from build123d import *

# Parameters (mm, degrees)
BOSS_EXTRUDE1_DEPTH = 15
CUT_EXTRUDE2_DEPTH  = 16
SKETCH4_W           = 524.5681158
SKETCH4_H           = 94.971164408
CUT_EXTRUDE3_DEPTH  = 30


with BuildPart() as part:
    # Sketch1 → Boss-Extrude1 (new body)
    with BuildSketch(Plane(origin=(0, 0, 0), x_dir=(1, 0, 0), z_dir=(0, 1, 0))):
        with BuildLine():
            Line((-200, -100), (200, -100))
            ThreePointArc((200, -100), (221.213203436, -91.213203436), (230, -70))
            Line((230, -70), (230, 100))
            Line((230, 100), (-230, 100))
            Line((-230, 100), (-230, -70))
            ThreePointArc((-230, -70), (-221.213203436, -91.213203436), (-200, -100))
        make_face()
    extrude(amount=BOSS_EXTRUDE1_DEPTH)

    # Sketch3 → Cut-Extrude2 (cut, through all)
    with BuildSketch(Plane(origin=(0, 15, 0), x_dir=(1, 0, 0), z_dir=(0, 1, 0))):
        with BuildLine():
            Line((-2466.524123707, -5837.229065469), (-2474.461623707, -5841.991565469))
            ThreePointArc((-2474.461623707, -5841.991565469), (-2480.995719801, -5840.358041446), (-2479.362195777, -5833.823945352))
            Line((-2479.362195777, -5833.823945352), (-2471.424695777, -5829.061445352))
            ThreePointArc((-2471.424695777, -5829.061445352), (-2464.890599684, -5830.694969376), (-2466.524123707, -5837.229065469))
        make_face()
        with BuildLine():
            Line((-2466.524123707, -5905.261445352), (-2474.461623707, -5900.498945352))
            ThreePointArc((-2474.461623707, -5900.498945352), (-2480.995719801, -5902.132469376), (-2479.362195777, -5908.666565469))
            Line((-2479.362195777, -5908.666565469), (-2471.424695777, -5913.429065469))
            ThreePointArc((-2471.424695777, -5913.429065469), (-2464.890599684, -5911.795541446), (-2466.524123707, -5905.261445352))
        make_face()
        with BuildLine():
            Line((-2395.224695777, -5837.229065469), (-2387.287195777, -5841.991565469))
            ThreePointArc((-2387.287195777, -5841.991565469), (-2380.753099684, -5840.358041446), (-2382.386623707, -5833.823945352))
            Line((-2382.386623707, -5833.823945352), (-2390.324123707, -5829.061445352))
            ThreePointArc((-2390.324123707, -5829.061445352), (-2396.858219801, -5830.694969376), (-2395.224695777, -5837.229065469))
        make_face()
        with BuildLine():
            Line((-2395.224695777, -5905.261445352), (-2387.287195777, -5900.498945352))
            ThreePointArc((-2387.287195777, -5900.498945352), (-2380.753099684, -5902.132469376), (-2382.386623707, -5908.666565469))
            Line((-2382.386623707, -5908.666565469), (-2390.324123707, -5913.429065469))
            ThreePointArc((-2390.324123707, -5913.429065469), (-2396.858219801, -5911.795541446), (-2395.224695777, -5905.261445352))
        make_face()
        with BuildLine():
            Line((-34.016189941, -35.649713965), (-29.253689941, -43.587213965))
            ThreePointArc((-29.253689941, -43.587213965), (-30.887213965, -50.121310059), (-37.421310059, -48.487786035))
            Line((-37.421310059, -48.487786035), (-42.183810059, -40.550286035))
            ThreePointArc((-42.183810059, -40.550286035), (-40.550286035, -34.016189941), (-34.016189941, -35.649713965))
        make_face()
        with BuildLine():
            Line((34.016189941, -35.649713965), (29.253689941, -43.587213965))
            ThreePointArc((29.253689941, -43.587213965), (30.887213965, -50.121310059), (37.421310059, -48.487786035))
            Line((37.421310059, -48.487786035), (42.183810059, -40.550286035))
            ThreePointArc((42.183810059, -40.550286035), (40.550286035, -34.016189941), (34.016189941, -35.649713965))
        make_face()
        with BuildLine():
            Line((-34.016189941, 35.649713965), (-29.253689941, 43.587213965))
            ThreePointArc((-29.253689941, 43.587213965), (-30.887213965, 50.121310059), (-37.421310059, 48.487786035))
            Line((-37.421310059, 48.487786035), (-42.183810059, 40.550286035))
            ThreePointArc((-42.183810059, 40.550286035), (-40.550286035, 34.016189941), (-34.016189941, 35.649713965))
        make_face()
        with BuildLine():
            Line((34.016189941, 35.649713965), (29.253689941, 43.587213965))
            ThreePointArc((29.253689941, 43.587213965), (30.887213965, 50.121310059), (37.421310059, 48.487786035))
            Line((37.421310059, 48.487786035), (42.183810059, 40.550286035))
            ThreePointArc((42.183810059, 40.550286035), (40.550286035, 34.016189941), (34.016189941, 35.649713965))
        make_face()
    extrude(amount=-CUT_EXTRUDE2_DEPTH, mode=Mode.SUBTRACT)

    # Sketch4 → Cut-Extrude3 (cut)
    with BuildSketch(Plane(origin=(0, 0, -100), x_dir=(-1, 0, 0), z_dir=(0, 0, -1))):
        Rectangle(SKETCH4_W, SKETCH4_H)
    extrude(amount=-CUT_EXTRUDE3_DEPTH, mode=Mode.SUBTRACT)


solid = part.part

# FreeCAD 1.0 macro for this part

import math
import FreeCAD as App
import Part
import Sketcher
from FreeCAD import Vector

doc = App.newDocument("Part")
body = doc.addObject("PartDesign::Body", "Body")

# Sketch on XZ plane
sketch1 = body.newObject("Sketcher::SketchObject", "Sketch")
sketch1.AttachmentSupport = (doc.getObject("XZ_Plane"), [""])
sketch1.MapMode = "FlatFace"
sketch1.addGeometry([
    Part.LineSegment(Vector(-200, 100, 0), Vector(200, 100, 0)),  # 0
    Part.ArcOfCircle(Part.Circle(Vector(200, 70, 0), Vector(0, 0, 1), 30), math.radians(0), math.radians(90)),  # 1
    Part.LineSegment(Vector(230, 70, 0), Vector(230, -100, 0)),  # 2
    Part.LineSegment(Vector(230, -100, 0), Vector(-230, -100, 0)),  # 3
    Part.LineSegment(Vector(-230, -100, 0), Vector(-230, 70, 0)),  # 4
    Part.ArcOfCircle(Part.Circle(Vector(-200, 70, 0), Vector(0, 0, 1), 30), math.radians(90), math.radians(180)),  # 5
], False)
sketch1.addConstraint([
    Sketcher.Constraint("Tangent", 0, 2, 1, 2),
    Sketcher.Constraint("Tangent", 1, 1, 2, 1),
    Sketcher.Constraint("Coincident", 2, 2, 3, 1),
    Sketcher.Constraint("Coincident", 3, 2, 4, 1),
    Sketcher.Constraint("Tangent", 4, 2, 5, 2),
    Sketcher.Constraint("Tangent", 5, 1, 0, 1),
    Sketcher.Constraint("Horizontal", 0),
    Sketcher.Constraint("Vertical", 2),
    Sketcher.Constraint("Horizontal", 3),
    Sketcher.Constraint("Vertical", 4),
    Sketcher.Constraint("Equal", 1, 5),
    Sketcher.Constraint("Radius", 1, 30.0),
    Sketcher.Constraint("DistanceX", 0, 1, 0, 2, 400.0),
    Sketcher.Constraint("DistanceY", 2, 2, 2, 1, 170.0),
    Sketcher.Constraint("DistanceX", -1, 1, 1, 3, 200.0),
    Sketcher.Constraint("DistanceY", -1, 1, 1, 3, 70.0),
])
pad1 = body.newObject("PartDesign::Pad", "Pad")
pad1.Profile = sketch1
pad1.Length = 15
pad1.Reversed = True

# Sketch on XZ plane
sketch2 = body.newObject("Sketcher::SketchObject", "Sketch001")
sketch2.AttachmentSupport = (doc.getObject("XZ_Plane"), [""])
sketch2.MapMode = "FlatFace"
sketch2.AttachmentOffset = App.Placement(Vector(0, 0, -15), App.Rotation())
sketch2.addGeometry([
    Part.LineSegment(Vector(-2474.5, 5842, 0), Vector(-2466.5, 5837.2, 0)),  # 0
    Part.ArcOfCircle(Part.Circle(Vector(-2469, 5833.1, 0), Vector(0, 0, 1), 4.8), math.radians(-121), math.radians(59)),  # 1
    Part.LineSegment(Vector(-2471.4, 5829.1, 0), Vector(-2479.4, 5833.8, 0)),  # 2
    Part.ArcOfCircle(Part.Circle(Vector(-2476.9, 5837.9, 0), Vector(0, 0, 1), 4.8), math.radians(59), math.radians(239)),  # 3
    Part.LineSegment(Vector(-2466.5, 5905.3, 0), Vector(-2474.5, 5900.5, 0)),  # 4
    Part.ArcOfCircle(Part.Circle(Vector(-2476.9, 5904.6, 0), Vector(0, 0, 1), 4.8), math.radians(121), math.radians(301)),  # 5
    Part.LineSegment(Vector(-2479.4, 5908.7, 0), Vector(-2471.4, 5913.4, 0)),  # 6
    Part.ArcOfCircle(Part.Circle(Vector(-2469, 5909.3, 0), Vector(0, 0, 1), 4.8), math.radians(-59), math.radians(121)),  # 7
    Part.LineSegment(Vector(-2395.2, 5837.2, 0), Vector(-2387.3, 5842, 0)),  # 8
    Part.ArcOfCircle(Part.Circle(Vector(-2384.8, 5837.9, 0), Vector(0, 0, 1), 4.8), math.radians(-59), math.radians(121)),  # 9
    Part.LineSegment(Vector(-2382.4, 5833.8, 0), Vector(-2390.3, 5829.1, 0)),  # 10
    Part.ArcOfCircle(Part.Circle(Vector(-2392.8, 5833.1, 0), Vector(0, 0, 1), 4.8), math.radians(121), math.radians(301)),  # 11
    Part.LineSegment(Vector(-2387.3, 5900.5, 0), Vector(-2395.2, 5905.3, 0)),  # 12
    Part.ArcOfCircle(Part.Circle(Vector(-2392.8, 5909.3, 0), Vector(0, 0, 1), 4.8), math.radians(59), math.radians(239)),  # 13
    Part.LineSegment(Vector(-2390.3, 5913.4, 0), Vector(-2382.4, 5908.7, 0)),  # 14
    Part.ArcOfCircle(Part.Circle(Vector(-2384.8, 5904.6, 0), Vector(0, 0, 1), 4.8), math.radians(-121), math.radians(59)),  # 15
    Part.LineSegment(Vector(-29.3, 43.6, 0), Vector(-34, 35.6, 0)),  # 16
    Part.ArcOfCircle(Part.Circle(Vector(-38.1, 38.1, 0), Vector(0, 0, 1), 4.8), math.radians(149), math.radians(329)),  # 17
    Part.LineSegment(Vector(-42.2, 40.6, 0), Vector(-37.4, 48.5, 0)),  # 18
    Part.ArcOfCircle(Part.Circle(Vector(-33.3, 46, 0), Vector(0, 0, 1), 4.8), math.radians(-31), math.radians(149)),  # 19
    Part.LineSegment(Vector(34, 35.6, 0), Vector(29.3, 43.6, 0)),  # 20
    Part.ArcOfCircle(Part.Circle(Vector(33.3, 46, 0), Vector(0, 0, 1), 4.8), math.radians(31), math.radians(211)),  # 21
    Part.LineSegment(Vector(37.4, 48.5, 0), Vector(42.2, 40.6, 0)),  # 22
    Part.ArcOfCircle(Part.Circle(Vector(38.1, 38.1, 0), Vector(0, 0, 1), 4.8), math.radians(-149), math.radians(31)),  # 23
    Part.LineSegment(Vector(-34, -35.6, 0), Vector(-29.3, -43.6, 0)),  # 24
    Part.ArcOfCircle(Part.Circle(Vector(-33.3, -46, 0), Vector(0, 0, 1), 4.8), math.radians(-149), math.radians(31)),  # 25
    Part.LineSegment(Vector(-37.4, -48.5, 0), Vector(-42.2, -40.6, 0)),  # 26
    Part.ArcOfCircle(Part.Circle(Vector(-38.1, -38.1, 0), Vector(0, 0, 1), 4.8), math.radians(31), math.radians(211)),  # 27
    Part.LineSegment(Vector(29.3, -43.6, 0), Vector(34, -35.6, 0)),  # 28
    Part.ArcOfCircle(Part.Circle(Vector(38.1, -38.1, 0), Vector(0, 0, 1), 4.8), math.radians(-31), math.radians(149)),  # 29
    Part.LineSegment(Vector(42.2, -40.6, 0), Vector(37.4, -48.5, 0)),  # 30
    Part.ArcOfCircle(Part.Circle(Vector(33.3, -46, 0), Vector(0, 0, 1), 4.8), math.radians(149), math.radians(329)),  # 31
], False)
sketch2.addConstraint([
    Sketcher.Constraint("Tangent", 0, 2, 1, 2),
    Sketcher.Constraint("Tangent", 1, 1, 2, 1),
    Sketcher.Constraint("Tangent", 2, 2, 3, 2),
    Sketcher.Constraint("Tangent", 3, 1, 0, 1),
    Sketcher.Constraint("Tangent", 4, 2, 5, 2),
    Sketcher.Constraint("Tangent", 5, 1, 6, 1),
    Sketcher.Constraint("Tangent", 6, 2, 7, 2),
    Sketcher.Constraint("Tangent", 7, 1, 4, 1),
    Sketcher.Constraint("Tangent", 8, 2, 9, 2),
    Sketcher.Constraint("Tangent", 9, 1, 10, 1),
    Sketcher.Constraint("Tangent", 10, 2, 11, 2),
    Sketcher.Constraint("Tangent", 11, 1, 8, 1),
    Sketcher.Constraint("Tangent", 12, 2, 13, 2),
    Sketcher.Constraint("Tangent", 13, 1, 14, 1),
    Sketcher.Constraint("Tangent", 14, 2, 15, 2),
    Sketcher.Constraint("Tangent", 15, 1, 12, 1),
    Sketcher.Constraint("Tangent", 16, 2, 17, 2),
    Sketcher.Constraint("Tangent", 17, 1, 18, 1),
    Sketcher.Constraint("Tangent", 18, 2, 19, 2),
    Sketcher.Constraint("Tangent", 19, 1, 16, 1),
    Sketcher.Constraint("Tangent", 20, 2, 21, 2),
    Sketcher.Constraint("Tangent", 21, 1, 22, 1),
    Sketcher.Constraint("Tangent", 22, 2, 23, 2),
    Sketcher.Constraint("Tangent", 23, 1, 20, 1),
    Sketcher.Constraint("Tangent", 24, 2, 25, 2),
    Sketcher.Constraint("Tangent", 25, 1, 26, 1),
    Sketcher.Constraint("Tangent", 26, 2, 27, 2),
    Sketcher.Constraint("Tangent", 27, 1, 24, 1),
    Sketcher.Constraint("Tangent", 28, 2, 29, 2),
    Sketcher.Constraint("Tangent", 29, 1, 30, 1),
    Sketcher.Constraint("Tangent", 30, 2, 31, 2),
    Sketcher.Constraint("Tangent", 31, 1, 28, 1),
    Sketcher.Constraint("Equal", 1, 3),
    Sketcher.Constraint("Equal", 3, 5),
    Sketcher.Constraint("Equal", 5, 7),
    Sketcher.Constraint("Equal", 7, 9),
    Sketcher.Constraint("Equal", 9, 11),
    Sketcher.Constraint("Equal", 11, 13),
    Sketcher.Constraint("Equal", 13, 15),
    Sketcher.Constraint("Equal", 15, 17),
    Sketcher.Constraint("Equal", 17, 19),
    Sketcher.Constraint("Equal", 19, 21),
    Sketcher.Constraint("Equal", 21, 23),
    Sketcher.Constraint("Equal", 23, 25),
    Sketcher.Constraint("Equal", 25, 27),
    Sketcher.Constraint("Equal", 27, 29),
    Sketcher.Constraint("Equal", 29, 31),
    Sketcher.Constraint("Symmetric", 21, 3, 25, 3, -1, 1),
    Sketcher.Constraint("Symmetric", 23, 3, 27, 3, -1, 1),
    Sketcher.Constraint("Symmetric", 17, 3, 29, 3, -1, 1),
    Sketcher.Constraint("Symmetric", 19, 3, 31, 3, -1, 1),
    Sketcher.Constraint("Symmetric", 19, 3, 21, 3, -2),
    Sketcher.Constraint("Symmetric", 17, 3, 23, 3, -2),
    Sketcher.Constraint("Parallel", 6, 8),
    Sketcher.Constraint("Parallel", 2, 12),
    Sketcher.Constraint("Perpendicular", 14, 16),
    Sketcher.Constraint("Perpendicular", 10, 20),
    Sketcher.Constraint("Horizontal", 3, 3, 9, 3),
    Sketcher.Constraint("Horizontal", 1, 3, 11, 3),
    Sketcher.Constraint("Horizontal", 7, 3, 13, 3),
    Sketcher.Constraint("Horizontal", 5, 3, 15, 3),
    Sketcher.Constraint("Vertical", 3, 3, 5, 3),
    Sketcher.Constraint("Vertical", 1, 3, 7, 3),
    Sketcher.Constraint("Vertical", 11, 3, 13, 3),
    Sketcher.Constraint("Equal", 14, 16),
    Sketcher.Constraint("DistanceX", 17, 3, -1, 1, 38.1),
    Sketcher.Constraint("DistanceY", -1, 1, 17, 3, 38.1),
    Sketcher.Constraint("Radius", 1, 4.7625),
    Sketcher.Constraint("DistanceY", 1, 3, 7, 3, 76.2),
    Sketcher.Constraint("DistanceX", 1, 3, 11, 3, 76.2),
    Sketcher.Constraint("DistanceY", 3, 3, 5, 3, 66.675),
    Sketcher.Constraint("DistanceX", 3, 3, 9, 3, 92.075),
    Sketcher.Constraint("DistanceX", 1, 3, -1, 1, 2468.97441),
    Sketcher.Constraint("DistanceY", -1, 1, 1, 3, 5833.145255),
])
pocket1 = body.newObject("PartDesign::Pocket", "Pocket")
pocket1.Profile = sketch2
pocket1.Type = "ThroughAll"
pocket1.Reversed = True

# Sketch on XY plane
sketch3 = body.newObject("Sketcher::SketchObject", "Sketch002")
sketch3.AttachmentSupport = (doc.getObject("XY_Plane"), [""])
sketch3.MapMode = "FlatFace"
sketch3.AttachmentOffset = App.Placement(Vector(0, 0, -100), App.Rotation())
sketch3.addGeometry([
    Part.LineSegment(Vector(262, 47, 0), Vector(262, -47, 0)),
    Part.LineSegment(Vector(262, -47, 0), Vector(-262, -47, 0)),
    Part.LineSegment(Vector(-262, -47, 0), Vector(-262, 47, 0)),
    Part.LineSegment(Vector(-262, 47, 0), Vector(262, 47, 0)),
], False)
sketch3.addConstraint([
    Sketcher.Constraint("Coincident", 0, 2, 1, 1),
    Sketcher.Constraint("Coincident", 1, 2, 2, 1),
    Sketcher.Constraint("Coincident", 2, 2, 3, 1),
    Sketcher.Constraint("Coincident", 3, 2, 0, 1),
    Sketcher.Constraint("Vertical", 0),
    Sketcher.Constraint("Horizontal", 1),
    Sketcher.Constraint("Vertical", 2),
    Sketcher.Constraint("Horizontal", 3),
    Sketcher.Constraint("Symmetric", 0, 2, 2, 2, -1, 1),
    Sketcher.Constraint("DistanceX", 1, 2, 1, 1, 524.568116),
    Sketcher.Constraint("DistanceY", 0, 2, 0, 1, 94.971164),
])
pocket2 = body.newObject("PartDesign::Pocket", "Pocket001")
pocket2.Profile = sketch3
pocket2.Length = 30
pocket2.Reversed = True

doc.recompute()
